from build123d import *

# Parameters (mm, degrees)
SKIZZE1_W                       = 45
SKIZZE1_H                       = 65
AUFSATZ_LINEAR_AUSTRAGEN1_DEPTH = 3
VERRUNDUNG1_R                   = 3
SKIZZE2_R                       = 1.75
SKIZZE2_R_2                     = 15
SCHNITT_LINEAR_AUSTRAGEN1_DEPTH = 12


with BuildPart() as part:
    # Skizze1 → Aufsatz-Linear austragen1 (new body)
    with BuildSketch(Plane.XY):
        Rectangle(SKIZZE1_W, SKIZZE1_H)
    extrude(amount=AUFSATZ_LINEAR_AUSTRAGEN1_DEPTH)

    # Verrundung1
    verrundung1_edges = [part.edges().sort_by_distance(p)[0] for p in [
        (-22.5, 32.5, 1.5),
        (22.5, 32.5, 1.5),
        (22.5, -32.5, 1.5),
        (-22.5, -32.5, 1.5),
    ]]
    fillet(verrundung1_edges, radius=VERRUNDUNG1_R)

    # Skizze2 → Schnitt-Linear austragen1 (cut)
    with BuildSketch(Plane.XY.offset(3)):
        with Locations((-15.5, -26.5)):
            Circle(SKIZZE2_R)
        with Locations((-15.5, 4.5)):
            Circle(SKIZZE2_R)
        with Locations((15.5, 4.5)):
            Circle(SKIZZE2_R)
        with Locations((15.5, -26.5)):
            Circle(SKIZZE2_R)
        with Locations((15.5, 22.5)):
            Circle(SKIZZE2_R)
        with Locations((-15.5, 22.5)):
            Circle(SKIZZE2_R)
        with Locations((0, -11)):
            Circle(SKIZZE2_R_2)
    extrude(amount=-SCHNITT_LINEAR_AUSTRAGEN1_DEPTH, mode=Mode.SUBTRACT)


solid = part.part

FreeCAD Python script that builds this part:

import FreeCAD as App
import Part
import Sketcher
from FreeCAD import Vector
Q = App.Units.Quantity


def edges_at(feature, points):
    """Names of the edges that pass closest to the given points."""
    edges = feature.Shape.Edges
    near = lambda p: min(range(len(edges)), key=lambda i: edges[i].distToShape(Part.Vertex(*p))[0])
    return sorted({f"Edge{near(p) + 1}" for p in points})

doc = App.newDocument("Part")
params = doc.addObject("Spreadsheet::Sheet", "Params")
for row, (alias, value) in enumerate([
    ("sketch1_width", "45 mm"),
    ("sketch1_height", "65 mm"),
    ("pad1_length", "3 mm"),
    ("fillet_radius", "3 mm"),
    ("sketch2_diameter", "30 mm"),
    ("sketch2_diameter2", "3.5 mm"),
    ("pocket1_length", "12 mm"),
], start=1):
    params.set(f"A{row}", alias)
    params.set(f"B{row}", "=" + value)
    params.setAlias(f"B{row}", alias)

body = doc.addObject("PartDesign::Body", "Body")

sketch1 = body.newObject("Sketcher::SketchObject", "Sketch")
sketch1.AttachmentSupport = (doc.getObject("XY_Plane"), [""])
sketch1.MapMode = "FlatFace"
sketch1.addGeometry([
    Part.LineSegment(Vector(-22.5, 32.5, 0), Vector(-22.5, -32.5, 0)),
    Part.LineSegment(Vector(-22.5, -32.5, 0), Vector(22.5, -32.5, 0)),
    Part.LineSegment(Vector(22.5, -32.5, 0), Vector(22.5, 32.5, 0)),
    Part.LineSegment(Vector(22.5, 32.5, 0), Vector(-22.5, 32.5, 0)),
], False)
sketch1.addConstraint([
    Sketcher.Constraint("Coincident", 0, 2, 1, 1),
    Sketcher.Constraint("Coincident", 1, 2, 2, 1),
    Sketcher.Constraint("Coincident", 2, 2, 3, 1),
    Sketcher.Constraint("Coincident", 3, 2, 0, 1),
    Sketcher.Constraint("Vertical", 0),
    Sketcher.Constraint("Horizontal", 1),
    Sketcher.Constraint("Vertical", 2),
    Sketcher.Constraint("Horizontal", 3),
    Sketcher.Constraint("Symmetric", 0, 2, 2, 2, -1, 1),
    Sketcher.Constraint("DistanceX", 1, 1, 1, 2, Q("45 mm")),
    Sketcher.Constraint("DistanceY", 0, 2, 0, 1, Q("65 mm")),
])
sketch1.setExpression("Constraints[9]", "Params.sketch1_width")
sketch1.setExpression("Constraints[10]", "Params.sketch1_height")
pad1 = body.newObject("PartDesign::Pad", "Pad")
pad1.Profile = sketch1
pad1.setExpression("Length", "Params.pad1_length")
doc.recompute()

fillet = body.newObject("PartDesign::Fillet", "Fillet")
fillet.Base = (pad1, edges_at(pad1, [
    (-22.5, 32.5, 1.5),
    (22.5, 32.5, 1.5),
    (22.5, -32.5, 1.5),
    (-22.5, -32.5, 1.5),
]))
fillet.setExpression("Radius", "Params.fillet_radius")

sketch2 = body.newObject("Sketcher::SketchObject", "Sketch001")
sketch2.AttachmentSupport = (doc.getObject("XY_Plane"), [""])
sketch2.MapMode = "FlatFace"
sketch2.AttachmentOffset = App.Placement(Vector(0, 0, 3), App.Rotation())
sketch2.addGeometry([
    Part.Circle(Vector(-15.5, -26.5, 0), Vector(0, 0, 1), 1.75),
    Part.Circle(Vector(-15.5, 4.5, 0), Vector(0, 0, 1), 1.75),
    Part.Circle(Vector(15.5, 4.5, 0), Vector(0, 0, 1), 1.75),
    Part.Circle(Vector(15.5, -26.5, 0), Vector(0, 0, 1), 1.75),
    Part.Circle(Vector(15.5, 22.5, 0), Vector(0, 0, 1), 1.75),
    Part.Circle(Vector(-15.5, 22.5, 0), Vector(0, 0, 1), 1.75),
    Part.Circle(Vector(0, -11, 0), Vector(0, 0, 1), 15),
], False)
sketch2.addConstraint([
    Sketcher.Constraint("Equal", 0, 1),
    Sketcher.Constraint("Equal", 1, 2),
    Sketcher.Constraint("Equal", 2, 3),
    Sketcher.Constraint("Equal", 3, 4),
    Sketcher.Constraint("Equal", 4, 5),
    Sketcher.Constraint("Symmetric", 1, 3, 2, 3, -2),
    Sketcher.Constraint("Symmetric", 0, 3, 3, 3, -2),
    Sketcher.Constraint("Symmetric", 4, 3, 5, 3, -2),
    Sketcher.Constraint("PointOnObject", 6, 3, -2),
    Sketcher.Constraint("Vertical", 0, 3, 1, 3),
    Sketcher.Constraint("Vertical", 3, 3, 4, 3),
    Sketcher.Constraint("Diameter", 6, Q("30 mm")),
    Sketcher.Constraint("Diameter", 0, Q("3.5 mm")),
    Sketcher.Constraint("DistanceY", 6, 3, -1, 1, Q("11 mm")),
    Sketcher.Constraint("DistanceY", 0, 3, 1, 3, Q("31 mm")),
    Sketcher.Constraint("DistanceX", 1, 3, 2, 3, Q("31 mm")),
    Sketcher.Constraint("DistanceY", 2, 3, 4, 3, Q("18 mm")),
    Sketcher.Constraint("DistanceY", 0, 3, -1, 1, Q("26.5 mm")),
])
sketch2.setExpression("Constraints[11]", "Params.sketch2_diameter")
sketch2.setExpression("Constraints[12]", "Params.sketch2_diameter2")
pocket1 = body.newObject("PartDesign::Pocket", "Pocket")
pocket1.Profile = sketch2
pocket1.setExpression("Length", "Params.pocket1_length")

doc.recompute()
